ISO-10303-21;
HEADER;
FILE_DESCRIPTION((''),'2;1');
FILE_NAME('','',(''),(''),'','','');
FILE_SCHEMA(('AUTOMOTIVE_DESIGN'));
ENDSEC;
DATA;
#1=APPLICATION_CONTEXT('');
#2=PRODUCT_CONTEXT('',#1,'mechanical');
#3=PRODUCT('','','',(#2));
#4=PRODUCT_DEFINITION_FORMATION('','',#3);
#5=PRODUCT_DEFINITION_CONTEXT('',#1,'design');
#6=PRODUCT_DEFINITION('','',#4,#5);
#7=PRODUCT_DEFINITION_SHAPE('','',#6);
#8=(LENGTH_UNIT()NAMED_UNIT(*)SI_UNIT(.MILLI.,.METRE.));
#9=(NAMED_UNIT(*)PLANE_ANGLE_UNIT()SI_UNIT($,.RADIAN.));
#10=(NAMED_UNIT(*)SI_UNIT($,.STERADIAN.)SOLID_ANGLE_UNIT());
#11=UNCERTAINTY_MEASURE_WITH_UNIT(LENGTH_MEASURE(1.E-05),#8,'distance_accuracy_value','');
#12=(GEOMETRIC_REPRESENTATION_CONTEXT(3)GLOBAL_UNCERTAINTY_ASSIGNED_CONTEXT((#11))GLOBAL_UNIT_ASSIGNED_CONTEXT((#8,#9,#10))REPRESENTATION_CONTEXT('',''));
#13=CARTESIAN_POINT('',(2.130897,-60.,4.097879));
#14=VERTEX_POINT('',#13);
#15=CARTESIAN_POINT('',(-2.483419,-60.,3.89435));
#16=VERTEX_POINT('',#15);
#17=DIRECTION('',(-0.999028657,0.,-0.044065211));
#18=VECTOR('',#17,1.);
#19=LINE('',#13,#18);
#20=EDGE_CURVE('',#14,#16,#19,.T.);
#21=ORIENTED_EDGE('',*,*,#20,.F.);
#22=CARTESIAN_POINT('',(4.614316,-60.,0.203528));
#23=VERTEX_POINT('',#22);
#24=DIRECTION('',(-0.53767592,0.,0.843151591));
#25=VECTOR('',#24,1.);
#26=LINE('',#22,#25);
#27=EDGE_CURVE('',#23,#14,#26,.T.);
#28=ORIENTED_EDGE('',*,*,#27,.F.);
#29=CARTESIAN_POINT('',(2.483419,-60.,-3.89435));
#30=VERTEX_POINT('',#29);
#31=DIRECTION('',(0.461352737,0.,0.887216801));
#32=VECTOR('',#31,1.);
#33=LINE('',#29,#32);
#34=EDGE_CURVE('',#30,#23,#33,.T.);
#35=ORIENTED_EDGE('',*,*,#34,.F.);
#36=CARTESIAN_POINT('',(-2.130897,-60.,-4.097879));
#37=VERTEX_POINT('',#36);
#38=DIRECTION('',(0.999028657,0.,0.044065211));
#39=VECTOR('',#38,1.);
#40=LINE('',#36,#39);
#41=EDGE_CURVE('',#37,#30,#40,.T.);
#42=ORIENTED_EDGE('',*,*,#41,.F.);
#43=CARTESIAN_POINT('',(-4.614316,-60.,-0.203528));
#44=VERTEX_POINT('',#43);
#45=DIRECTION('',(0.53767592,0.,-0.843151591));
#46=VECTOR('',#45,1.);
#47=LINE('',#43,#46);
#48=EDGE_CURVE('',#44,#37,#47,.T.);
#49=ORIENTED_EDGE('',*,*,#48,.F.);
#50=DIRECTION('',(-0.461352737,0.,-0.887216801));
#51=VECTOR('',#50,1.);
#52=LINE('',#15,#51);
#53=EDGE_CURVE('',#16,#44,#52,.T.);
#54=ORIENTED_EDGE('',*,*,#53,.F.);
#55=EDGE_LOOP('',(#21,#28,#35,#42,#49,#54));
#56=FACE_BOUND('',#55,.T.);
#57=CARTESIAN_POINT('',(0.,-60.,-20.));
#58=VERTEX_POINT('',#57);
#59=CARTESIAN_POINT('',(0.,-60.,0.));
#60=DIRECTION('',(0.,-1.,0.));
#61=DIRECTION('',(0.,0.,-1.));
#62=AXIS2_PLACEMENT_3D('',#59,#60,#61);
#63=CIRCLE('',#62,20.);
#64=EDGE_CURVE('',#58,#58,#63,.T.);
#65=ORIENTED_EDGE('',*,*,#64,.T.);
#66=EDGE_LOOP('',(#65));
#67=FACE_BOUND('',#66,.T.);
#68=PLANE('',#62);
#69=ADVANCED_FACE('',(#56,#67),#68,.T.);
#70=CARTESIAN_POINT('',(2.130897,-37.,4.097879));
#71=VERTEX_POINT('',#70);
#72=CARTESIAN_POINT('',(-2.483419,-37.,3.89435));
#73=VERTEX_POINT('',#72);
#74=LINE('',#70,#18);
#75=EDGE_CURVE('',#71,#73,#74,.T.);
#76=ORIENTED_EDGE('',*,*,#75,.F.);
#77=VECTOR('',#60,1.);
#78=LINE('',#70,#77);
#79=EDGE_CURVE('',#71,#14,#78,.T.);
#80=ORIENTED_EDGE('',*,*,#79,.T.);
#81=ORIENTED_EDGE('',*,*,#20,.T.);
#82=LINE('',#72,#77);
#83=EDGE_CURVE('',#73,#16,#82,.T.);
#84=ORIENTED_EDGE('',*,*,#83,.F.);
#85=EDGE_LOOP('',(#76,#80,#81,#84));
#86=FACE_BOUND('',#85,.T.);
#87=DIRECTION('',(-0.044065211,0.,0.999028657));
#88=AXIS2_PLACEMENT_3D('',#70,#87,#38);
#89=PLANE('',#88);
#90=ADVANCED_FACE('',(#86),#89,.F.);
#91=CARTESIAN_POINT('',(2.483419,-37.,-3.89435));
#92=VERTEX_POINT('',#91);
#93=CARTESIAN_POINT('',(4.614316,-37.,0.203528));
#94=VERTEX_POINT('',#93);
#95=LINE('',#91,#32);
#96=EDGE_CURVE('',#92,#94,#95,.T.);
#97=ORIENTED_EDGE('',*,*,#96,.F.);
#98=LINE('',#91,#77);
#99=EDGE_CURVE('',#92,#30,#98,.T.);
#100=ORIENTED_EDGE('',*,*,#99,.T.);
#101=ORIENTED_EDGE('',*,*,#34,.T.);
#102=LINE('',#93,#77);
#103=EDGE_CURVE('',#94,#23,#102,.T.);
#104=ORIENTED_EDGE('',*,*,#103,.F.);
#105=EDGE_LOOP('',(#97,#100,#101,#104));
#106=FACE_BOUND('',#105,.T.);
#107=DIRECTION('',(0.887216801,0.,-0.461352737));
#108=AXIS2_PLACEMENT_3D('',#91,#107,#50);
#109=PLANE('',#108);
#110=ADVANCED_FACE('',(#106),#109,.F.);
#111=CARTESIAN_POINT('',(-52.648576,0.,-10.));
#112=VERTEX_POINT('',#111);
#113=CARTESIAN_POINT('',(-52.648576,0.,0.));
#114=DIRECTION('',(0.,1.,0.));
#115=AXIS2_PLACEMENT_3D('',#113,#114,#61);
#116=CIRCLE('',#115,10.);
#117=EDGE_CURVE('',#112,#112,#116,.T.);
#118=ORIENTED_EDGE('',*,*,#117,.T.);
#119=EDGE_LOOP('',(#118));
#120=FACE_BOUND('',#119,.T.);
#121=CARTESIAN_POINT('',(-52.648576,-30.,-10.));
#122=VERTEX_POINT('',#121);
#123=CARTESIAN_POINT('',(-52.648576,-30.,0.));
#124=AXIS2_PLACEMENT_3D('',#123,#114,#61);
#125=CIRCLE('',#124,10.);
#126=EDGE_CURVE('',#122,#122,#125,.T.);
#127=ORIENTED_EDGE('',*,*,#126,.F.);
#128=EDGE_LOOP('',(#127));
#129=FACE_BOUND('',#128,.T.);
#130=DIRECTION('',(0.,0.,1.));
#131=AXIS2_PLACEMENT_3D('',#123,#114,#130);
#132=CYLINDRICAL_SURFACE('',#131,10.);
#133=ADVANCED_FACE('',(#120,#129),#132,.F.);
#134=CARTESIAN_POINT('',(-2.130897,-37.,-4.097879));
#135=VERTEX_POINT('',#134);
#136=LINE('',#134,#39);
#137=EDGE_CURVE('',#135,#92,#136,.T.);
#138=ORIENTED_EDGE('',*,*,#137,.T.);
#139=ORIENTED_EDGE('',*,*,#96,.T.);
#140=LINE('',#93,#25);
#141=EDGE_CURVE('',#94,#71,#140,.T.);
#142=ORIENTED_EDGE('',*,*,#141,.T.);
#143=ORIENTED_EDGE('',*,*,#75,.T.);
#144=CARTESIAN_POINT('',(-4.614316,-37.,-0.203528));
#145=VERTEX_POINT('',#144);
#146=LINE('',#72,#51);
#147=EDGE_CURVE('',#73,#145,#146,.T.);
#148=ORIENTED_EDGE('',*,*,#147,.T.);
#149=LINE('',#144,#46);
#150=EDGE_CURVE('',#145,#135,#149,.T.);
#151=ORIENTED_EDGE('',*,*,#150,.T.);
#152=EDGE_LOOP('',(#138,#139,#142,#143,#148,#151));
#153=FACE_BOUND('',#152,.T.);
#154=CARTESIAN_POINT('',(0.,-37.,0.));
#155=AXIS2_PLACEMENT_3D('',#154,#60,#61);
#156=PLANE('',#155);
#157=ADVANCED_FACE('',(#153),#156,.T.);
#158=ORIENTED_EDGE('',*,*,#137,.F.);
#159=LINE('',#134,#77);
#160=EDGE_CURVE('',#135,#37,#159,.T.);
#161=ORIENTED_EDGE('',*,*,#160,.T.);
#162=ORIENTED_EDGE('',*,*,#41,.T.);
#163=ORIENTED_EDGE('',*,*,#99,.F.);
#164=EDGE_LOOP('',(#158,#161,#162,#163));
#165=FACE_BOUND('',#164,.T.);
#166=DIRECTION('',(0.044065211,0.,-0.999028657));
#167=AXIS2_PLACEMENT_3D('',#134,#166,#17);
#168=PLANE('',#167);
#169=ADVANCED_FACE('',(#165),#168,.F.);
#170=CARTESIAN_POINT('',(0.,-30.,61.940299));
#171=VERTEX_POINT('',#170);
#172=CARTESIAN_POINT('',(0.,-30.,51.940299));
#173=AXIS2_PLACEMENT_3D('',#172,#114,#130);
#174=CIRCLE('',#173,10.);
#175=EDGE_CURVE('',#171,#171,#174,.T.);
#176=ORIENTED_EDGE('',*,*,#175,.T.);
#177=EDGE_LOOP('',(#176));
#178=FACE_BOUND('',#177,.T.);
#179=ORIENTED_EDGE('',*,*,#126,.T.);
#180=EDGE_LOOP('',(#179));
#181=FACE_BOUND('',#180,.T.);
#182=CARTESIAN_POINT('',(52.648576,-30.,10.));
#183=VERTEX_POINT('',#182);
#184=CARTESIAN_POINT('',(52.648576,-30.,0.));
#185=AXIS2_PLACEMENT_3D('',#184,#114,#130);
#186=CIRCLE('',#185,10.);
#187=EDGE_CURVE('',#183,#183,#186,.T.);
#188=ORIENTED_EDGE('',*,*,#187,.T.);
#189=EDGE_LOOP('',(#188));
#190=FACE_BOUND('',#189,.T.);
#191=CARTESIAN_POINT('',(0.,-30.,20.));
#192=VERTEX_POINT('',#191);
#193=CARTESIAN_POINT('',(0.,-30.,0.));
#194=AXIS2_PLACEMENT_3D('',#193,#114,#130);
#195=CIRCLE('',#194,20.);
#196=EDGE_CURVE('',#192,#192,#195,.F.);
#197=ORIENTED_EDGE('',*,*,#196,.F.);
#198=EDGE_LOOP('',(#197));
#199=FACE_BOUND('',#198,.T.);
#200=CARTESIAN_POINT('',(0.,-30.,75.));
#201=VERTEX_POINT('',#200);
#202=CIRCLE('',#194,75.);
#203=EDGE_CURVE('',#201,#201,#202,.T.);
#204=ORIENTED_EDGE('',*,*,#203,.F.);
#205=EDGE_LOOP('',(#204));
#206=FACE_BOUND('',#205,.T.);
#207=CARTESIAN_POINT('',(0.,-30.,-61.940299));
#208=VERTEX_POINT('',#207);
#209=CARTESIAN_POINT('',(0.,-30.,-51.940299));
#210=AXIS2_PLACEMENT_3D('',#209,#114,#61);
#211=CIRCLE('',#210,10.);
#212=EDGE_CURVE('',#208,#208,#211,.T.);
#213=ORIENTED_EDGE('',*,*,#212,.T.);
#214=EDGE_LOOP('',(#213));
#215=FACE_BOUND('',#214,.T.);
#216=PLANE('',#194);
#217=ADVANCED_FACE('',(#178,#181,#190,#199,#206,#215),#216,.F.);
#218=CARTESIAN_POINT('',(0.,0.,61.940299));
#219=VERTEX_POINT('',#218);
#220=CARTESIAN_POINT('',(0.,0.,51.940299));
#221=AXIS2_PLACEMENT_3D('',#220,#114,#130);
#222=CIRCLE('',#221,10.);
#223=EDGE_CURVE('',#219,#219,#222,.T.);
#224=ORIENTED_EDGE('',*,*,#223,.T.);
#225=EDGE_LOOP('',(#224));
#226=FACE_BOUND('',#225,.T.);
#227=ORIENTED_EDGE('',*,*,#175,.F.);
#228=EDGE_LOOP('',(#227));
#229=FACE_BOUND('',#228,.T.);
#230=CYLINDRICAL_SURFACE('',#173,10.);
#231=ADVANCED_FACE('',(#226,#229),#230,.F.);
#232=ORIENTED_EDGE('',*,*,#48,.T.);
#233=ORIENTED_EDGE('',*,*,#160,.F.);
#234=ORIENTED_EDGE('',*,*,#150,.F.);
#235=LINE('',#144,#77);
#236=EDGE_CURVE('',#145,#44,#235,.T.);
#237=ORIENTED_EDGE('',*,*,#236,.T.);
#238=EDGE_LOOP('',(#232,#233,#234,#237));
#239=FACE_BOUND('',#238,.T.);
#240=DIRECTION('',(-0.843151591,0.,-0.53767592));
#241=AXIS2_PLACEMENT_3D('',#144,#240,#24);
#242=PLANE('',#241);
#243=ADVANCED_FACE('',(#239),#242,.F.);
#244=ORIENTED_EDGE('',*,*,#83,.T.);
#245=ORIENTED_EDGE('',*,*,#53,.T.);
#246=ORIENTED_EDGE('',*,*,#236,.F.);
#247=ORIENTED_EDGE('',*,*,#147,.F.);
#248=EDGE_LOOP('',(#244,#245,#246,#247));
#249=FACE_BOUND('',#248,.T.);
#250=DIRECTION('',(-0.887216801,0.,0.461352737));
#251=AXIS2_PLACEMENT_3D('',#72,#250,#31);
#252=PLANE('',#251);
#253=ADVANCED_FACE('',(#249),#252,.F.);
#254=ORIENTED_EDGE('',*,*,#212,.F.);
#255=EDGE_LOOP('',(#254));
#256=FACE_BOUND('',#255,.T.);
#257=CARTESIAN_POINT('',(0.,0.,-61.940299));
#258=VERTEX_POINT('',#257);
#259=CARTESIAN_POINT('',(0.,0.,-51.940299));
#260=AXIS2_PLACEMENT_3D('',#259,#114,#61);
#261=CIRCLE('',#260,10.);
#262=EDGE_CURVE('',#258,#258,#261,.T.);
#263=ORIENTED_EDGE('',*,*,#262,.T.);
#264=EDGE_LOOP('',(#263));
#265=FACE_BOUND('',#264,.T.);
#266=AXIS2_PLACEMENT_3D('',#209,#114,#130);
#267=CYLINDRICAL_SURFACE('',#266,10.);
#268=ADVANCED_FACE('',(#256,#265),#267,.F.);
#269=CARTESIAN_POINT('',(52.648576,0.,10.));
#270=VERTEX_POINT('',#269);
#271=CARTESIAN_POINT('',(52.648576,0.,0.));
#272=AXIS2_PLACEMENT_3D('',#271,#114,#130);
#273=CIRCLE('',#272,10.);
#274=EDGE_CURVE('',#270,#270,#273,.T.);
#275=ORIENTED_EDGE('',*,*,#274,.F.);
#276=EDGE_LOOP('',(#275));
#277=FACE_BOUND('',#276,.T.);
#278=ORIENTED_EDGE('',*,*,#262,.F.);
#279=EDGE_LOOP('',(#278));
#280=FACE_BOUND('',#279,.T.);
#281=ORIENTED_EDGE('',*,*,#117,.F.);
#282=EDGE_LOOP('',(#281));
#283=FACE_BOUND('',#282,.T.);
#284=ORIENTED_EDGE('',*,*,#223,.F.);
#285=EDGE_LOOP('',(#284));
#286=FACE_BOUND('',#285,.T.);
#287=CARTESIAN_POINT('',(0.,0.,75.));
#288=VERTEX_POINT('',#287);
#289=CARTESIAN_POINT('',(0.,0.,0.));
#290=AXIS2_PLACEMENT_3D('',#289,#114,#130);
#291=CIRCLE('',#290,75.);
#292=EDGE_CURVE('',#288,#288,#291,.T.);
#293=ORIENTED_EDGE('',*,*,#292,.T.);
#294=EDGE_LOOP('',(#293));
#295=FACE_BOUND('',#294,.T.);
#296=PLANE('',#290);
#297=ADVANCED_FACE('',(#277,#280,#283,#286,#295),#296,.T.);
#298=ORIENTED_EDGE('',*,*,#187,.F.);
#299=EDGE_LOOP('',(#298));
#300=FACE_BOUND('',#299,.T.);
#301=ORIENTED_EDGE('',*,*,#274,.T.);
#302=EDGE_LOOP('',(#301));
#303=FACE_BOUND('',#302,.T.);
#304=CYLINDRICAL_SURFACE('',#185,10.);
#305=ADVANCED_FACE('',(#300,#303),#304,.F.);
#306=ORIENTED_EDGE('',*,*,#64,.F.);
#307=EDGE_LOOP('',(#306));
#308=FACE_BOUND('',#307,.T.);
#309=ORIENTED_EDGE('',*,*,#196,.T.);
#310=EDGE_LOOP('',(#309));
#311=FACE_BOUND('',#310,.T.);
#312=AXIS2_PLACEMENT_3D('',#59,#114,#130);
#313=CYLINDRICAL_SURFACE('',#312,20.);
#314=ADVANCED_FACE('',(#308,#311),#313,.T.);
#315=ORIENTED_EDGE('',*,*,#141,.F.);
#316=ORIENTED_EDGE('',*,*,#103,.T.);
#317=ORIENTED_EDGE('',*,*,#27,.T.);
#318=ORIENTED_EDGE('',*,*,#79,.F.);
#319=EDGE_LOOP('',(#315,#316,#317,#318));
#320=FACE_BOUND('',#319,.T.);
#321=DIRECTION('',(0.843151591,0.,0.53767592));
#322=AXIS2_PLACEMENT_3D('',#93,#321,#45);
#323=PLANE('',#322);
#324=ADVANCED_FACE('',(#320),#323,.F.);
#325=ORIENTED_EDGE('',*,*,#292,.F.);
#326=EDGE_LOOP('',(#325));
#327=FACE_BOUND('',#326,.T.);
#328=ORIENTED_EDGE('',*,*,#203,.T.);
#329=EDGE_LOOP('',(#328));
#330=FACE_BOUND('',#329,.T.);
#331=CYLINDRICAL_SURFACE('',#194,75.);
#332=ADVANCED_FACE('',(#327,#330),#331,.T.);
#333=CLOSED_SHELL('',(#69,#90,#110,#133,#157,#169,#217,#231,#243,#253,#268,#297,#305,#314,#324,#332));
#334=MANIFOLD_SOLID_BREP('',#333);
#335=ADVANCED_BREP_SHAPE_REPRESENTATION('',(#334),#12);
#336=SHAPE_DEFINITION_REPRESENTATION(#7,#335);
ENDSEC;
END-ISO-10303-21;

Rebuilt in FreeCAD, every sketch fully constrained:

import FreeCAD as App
import Part
import Sketcher

V = App.Vector
Q = App.Units.Quantity


def add_polygon(sketch, points):
    """Adds a closed chain of lines whose ends are joined by coincident constraints."""
    first, n = sketch.GeometryCount, len(points)
    for a, b in zip(points, points[1:] + points[:1]):
        sketch.addGeometry(Part.LineSegment(App.Vector(*a, 0), App.Vector(*b, 0)), False)
    for i in range(n):
        sketch.addConstraint(Sketcher.Constraint("Coincident", first + i, 2, first + (i + 1) % n, 1))

doc = App.newDocument("Part")
body = doc.addObject("PartDesign::Body", "Body")

# Sketch on XZ plane
sketch1 = doc.addObject("Sketcher::SketchObject", "Sketch")
body.addObject(sketch1)
sketch1.AttachmentSupport = (doc.XZ_Plane, [""])
sketch1.MapMode = "FlatFace"
sketch1.addGeometry([
    Part.Circle(V(0, 0, 0), V(0, 0, 1), 75),  # 0
    Part.Circle(V(-53, 0, 0), V(0, 0, 1), 10),  # 1
    Part.Circle(V(0, 52, 0), V(0, 0, 1), 10),  # 2
    Part.Circle(V(53, 0, 0), V(0, 0, 1), 10),  # 3
    Part.Circle(V(0, -52, 0), V(0, 0, 1), 10),  # 4
], False)
sketch1.addConstraint([
    Sketcher.Constraint("Coincident", 0, 3, -1, 1),
    Sketcher.Constraint("Equal", 1, 2),
    Sketcher.Constraint("Equal", 2, 3),
    Sketcher.Constraint("Equal", 3, 4),
    Sketcher.Constraint("Symmetric", 1, 3, 3, 3, -1, 1),
    Sketcher.Constraint("Symmetric", 2, 3, 4, 3, -1, 1),
    Sketcher.Constraint("PointOnObject", 1, 3, -1),
    Sketcher.Constraint("PointOnObject", 2, 3, -2),
    Sketcher.Constraint("Diameter", 0, Q("150 mm")),
    Sketcher.Constraint("Diameter", 1, Q("20 mm")),
    Sketcher.Constraint("DistanceY", -1, 1, 2, 3, Q("51.940299 mm")),
    Sketcher.Constraint("DistanceX", 1, 3, 3, 3, Q("105.297151 mm")),
])
pad1 = doc.addObject("PartDesign::Pad", "Pad")
body.addObject(pad1)
pad1.Profile = sketch1
pad1.Length = 30

# Sketch on XZ plane
sketch2 = doc.addObject("Sketcher::SketchObject", "Sketch001")
body.addObject(sketch2)
sketch2.AttachmentSupport = (doc.XZ_Plane, [""])
sketch2.MapMode = "FlatFace"
sketch2.AttachmentOffset = App.Placement(V(0, 0, 30), App.Rotation())
sketch2.addGeometry(Part.Circle(V(0, 0, 0), V(0, 0, 1), 20), False)
sketch2.addConstraint([
    Sketcher.Constraint("Coincident", 0, 3, -1, 1),
    Sketcher.Constraint("Diameter", 0, Q("40 mm")),
])
pad2 = doc.addObject("PartDesign::Pad", "Pad001")
body.addObject(pad2)
pad2.Profile = sketch2
pad2.Length = 30

# Sketch on XZ plane
sketch3 = doc.addObject("Sketcher::SketchObject", "Sketch002")
body.addObject(sketch3)
sketch3.AttachmentSupport = (doc.XZ_Plane, [""])
sketch3.MapMode = "FlatFace"
sketch3.AttachmentOffset = App.Placement(V(0, 0, 60), App.Rotation())
add_polygon(sketch3, [(2.1, 4.1), (-2.5, 3.9), (-4.6, -0.2), (-2.1, -4.1), (2.5, -3.9), (4.6, 0.2)])  # lines 0-5
sketch3.addConstraint([
    Sketcher.Constraint("Symmetric", 0, 2, 3, 2, -1, 1),
    Sketcher.Constraint("Symmetric", 1, 2, 4, 2, -1, 1),
    Sketcher.Constraint("Symmetric", 2, 2, 5, 2, -1, 1),
    Sketcher.Constraint("Equal", 0, 1),
    Sketcher.Constraint("Equal", 1, 2),
    Sketcher.Constraint("DistanceY", 3, 2, 0, 2, Q("7.788701 mm")),
    Sketcher.Constraint("DistanceX", 0, 2, -1, 1, Q("2.483419 mm")),
    Sketcher.Constraint("DistanceY", 1, 2, -1, 1, Q("0.203528 mm")),
    Sketcher.Constraint("DistanceY", 2, 2, -1, 1, Q("4.097879 mm")),
])
pad3 = doc.addObject("PartDesign::Pad", "Pad002")
body.addObject(pad3)
pad3.Profile = sketch3
pad3.Type = "UpToLast"
pad3.Reversed = True

# Sketch on XZ plane
sketch4 = doc.addObject("Sketcher::SketchObject", "Sketch003")
body.addObject(sketch4)
sketch4.AttachmentSupport = (doc.XZ_Plane, [""])
sketch4.MapMode = "FlatFace"
sketch4.AttachmentOffset = App.Placement(V(0, 0, 60), App.Rotation())
add_polygon(sketch4, [(2.1, 4.1), (-2.5, 3.9), (-4.6, -0.2), (-2.1, -4.1), (2.5, -3.9), (4.6, 0.2)])  # lines 0-5
sketch4.addConstraint([
    Sketcher.Constraint("Symmetric", 0, 2, 3, 2, -1, 1),
    Sketcher.Constraint("Symmetric", 1, 2, 4, 2, -1, 1),
    Sketcher.Constraint("Symmetric", 2, 2, 5, 2, -1, 1),
    Sketcher.Constraint("Equal", 0, 1),
    Sketcher.Constraint("Equal", 1, 2),
    Sketcher.Constraint("DistanceY", 3, 2, 0, 2, Q("7.788701 mm")),
    Sketcher.Constraint("DistanceX", 0, 2, -1, 1, Q("2.483419 mm")),
    Sketcher.Constraint("DistanceY", 1, 2, -1, 1, Q("0.203528 mm")),
    Sketcher.Constraint("DistanceY", 2, 2, -1, 1, Q("4.097879 mm")),
])
pocket1 = doc.addObject("PartDesign::Pocket", "Pocket")
body.addObject(pocket1)
pocket1.Profile = sketch4
pocket1.Length = 23

doc.recompute()
